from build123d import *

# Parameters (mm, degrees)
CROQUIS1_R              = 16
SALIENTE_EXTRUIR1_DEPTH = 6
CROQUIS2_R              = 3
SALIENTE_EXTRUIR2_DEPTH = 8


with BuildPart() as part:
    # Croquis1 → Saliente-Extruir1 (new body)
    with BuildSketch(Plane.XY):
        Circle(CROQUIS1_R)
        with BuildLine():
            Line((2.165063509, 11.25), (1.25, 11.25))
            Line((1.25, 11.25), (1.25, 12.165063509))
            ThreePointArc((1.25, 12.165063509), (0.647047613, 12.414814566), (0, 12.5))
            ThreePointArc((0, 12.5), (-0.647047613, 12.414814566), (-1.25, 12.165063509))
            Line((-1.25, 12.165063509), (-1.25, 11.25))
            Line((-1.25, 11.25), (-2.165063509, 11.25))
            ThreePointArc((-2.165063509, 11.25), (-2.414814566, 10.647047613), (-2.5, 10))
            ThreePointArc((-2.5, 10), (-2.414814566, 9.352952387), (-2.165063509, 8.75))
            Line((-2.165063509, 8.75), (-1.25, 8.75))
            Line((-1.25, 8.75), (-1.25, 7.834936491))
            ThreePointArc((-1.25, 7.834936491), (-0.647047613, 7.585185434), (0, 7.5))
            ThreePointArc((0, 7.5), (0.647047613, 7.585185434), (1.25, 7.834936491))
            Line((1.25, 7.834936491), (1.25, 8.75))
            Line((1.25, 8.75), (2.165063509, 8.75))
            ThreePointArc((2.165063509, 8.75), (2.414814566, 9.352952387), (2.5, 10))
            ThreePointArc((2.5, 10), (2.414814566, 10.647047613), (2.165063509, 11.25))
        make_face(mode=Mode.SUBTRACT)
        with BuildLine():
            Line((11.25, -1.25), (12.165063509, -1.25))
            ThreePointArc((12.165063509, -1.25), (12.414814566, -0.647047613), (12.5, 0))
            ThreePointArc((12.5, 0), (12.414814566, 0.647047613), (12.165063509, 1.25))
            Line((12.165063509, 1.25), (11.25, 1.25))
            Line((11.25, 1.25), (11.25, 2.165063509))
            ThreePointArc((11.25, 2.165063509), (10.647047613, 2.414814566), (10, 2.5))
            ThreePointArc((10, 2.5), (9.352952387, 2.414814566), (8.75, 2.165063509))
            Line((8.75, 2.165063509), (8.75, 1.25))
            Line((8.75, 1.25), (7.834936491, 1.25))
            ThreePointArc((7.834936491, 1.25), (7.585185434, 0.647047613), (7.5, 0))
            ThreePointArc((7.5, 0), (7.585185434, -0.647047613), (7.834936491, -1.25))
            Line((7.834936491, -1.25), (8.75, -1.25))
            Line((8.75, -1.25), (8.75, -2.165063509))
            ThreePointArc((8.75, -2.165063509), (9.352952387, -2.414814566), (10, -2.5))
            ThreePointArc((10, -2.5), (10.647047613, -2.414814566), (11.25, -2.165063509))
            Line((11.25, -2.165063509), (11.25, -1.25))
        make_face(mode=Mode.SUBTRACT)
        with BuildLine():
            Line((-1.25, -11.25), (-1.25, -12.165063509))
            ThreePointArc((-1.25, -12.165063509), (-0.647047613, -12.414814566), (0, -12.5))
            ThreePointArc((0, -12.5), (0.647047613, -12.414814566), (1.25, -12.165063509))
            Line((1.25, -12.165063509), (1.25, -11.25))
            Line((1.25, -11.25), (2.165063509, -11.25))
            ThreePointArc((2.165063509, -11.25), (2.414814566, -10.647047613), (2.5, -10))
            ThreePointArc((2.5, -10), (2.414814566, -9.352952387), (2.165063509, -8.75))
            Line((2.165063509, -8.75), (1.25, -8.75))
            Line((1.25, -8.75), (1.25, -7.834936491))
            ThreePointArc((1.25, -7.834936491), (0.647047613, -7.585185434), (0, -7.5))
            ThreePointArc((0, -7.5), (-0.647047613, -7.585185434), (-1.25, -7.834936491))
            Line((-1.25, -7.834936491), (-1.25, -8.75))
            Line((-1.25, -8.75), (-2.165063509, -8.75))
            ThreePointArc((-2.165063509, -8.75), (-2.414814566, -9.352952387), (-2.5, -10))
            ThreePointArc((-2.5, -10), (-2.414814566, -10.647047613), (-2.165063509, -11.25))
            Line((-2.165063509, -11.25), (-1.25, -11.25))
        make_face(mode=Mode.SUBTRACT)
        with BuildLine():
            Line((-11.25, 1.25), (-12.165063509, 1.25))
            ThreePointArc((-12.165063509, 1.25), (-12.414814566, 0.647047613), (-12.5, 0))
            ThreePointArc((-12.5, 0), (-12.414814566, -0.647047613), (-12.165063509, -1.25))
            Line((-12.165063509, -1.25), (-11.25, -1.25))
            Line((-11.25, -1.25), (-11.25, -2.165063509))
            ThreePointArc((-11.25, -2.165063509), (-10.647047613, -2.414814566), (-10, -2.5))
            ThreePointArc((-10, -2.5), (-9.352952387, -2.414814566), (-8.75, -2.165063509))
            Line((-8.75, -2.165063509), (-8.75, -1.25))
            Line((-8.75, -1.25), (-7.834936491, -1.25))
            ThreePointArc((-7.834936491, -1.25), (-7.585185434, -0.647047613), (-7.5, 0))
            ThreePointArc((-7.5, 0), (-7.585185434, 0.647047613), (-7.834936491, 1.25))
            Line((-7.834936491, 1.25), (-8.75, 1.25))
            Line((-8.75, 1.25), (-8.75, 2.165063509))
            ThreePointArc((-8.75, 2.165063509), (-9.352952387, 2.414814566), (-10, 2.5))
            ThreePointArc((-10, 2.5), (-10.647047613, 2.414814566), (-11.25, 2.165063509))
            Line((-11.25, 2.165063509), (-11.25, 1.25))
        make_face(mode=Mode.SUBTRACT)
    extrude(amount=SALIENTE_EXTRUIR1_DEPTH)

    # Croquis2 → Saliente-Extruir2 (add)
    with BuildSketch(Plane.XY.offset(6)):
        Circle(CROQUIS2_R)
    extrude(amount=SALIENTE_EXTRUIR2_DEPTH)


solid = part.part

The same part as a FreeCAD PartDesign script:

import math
import FreeCAD as App
import Part
import Sketcher

V = App.Vector

doc = App.newDocument("Part")
body = doc.addObject("PartDesign::Body", "Body")

sketch1 = doc.addObject("Sketcher::SketchObject", "Sketch")
body.addObject(sketch1)
sketch1.AttachmentSupport = (doc.XY_Plane, [""])
sketch1.MapMode = "FlatFace"
sketch1.addGeometry(Part.Circle(V(0, 0, 0), V(0, 0, 1), 16), False)
sketch1.addGeometry(Part.LineSegment(V(-1.2, -12.2, 0), V(-1.2, -11.2, 0)), False)
sketch1.addGeometry(Part.LineSegment(V(-1.2, -11.2, 0), V(-2.2, -11.2, 0)), False)
sketch1.addGeometry(Part.ArcOfCircle(Part.Circle(V(0, -10, 0), V(0, 0, 1), 2.5), math.radians(180), math.radians(210)), False)
sketch1.addGeometry(Part.ArcOfCircle(Part.Circle(V(0, -10, 0), V(0, 0, 1), 2.5), math.radians(150), math.radians(180)), False)
sketch1.addGeometry(Part.LineSegment(V(-2.2, -8.8, 0), V(-1.2, -8.8, 0)), False)
sketch1.addGeometry(Part.LineSegment(V(-1.2, -8.8, 0), V(-1.2, -7.8, 0)), False)
sketch1.addGeometry(Part.ArcOfCircle(Part.Circle(V(0, -10, 0), V(0, 0, 1), 2.5), math.radians(90), math.radians(120)), False)
sketch1.addGeometry(Part.ArcOfCircle(Part.Circle(V(0, -10, 0), V(0, 0, 1), 2.5), math.radians(60), math.radians(90)), False)
sketch1.addGeometry(Part.LineSegment(V(1.2, -7.8, 0), V(1.2, -8.8, 0)), False)
sketch1.addGeometry(Part.LineSegment(V(1.2, -8.8, 0), V(2.2, -8.8, 0)), False)
sketch1.addGeometry(Part.ArcOfCircle(Part.Circle(V(0, -10, 0), V(0, 0, 1), 2.5), math.radians(0), math.radians(30)), False)
sketch1.addGeometry(Part.ArcOfCircle(Part.Circle(V(0, -10, 0), V(0, 0, 1), 2.5), math.radians(-30), math.radians(0)), False)
sketch1.addGeometry(Part.LineSegment(V(2.2, -11.2, 0), V(1.2, -11.2, 0)), False)
sketch1.addGeometry(Part.LineSegment(V(1.2, -11.2, 0), V(1.2, -12.2, 0)), False)
sketch1.addGeometry(Part.ArcOfCircle(Part.Circle(V(0, -10, 0), V(0, 0, 1), 2.5), math.radians(-90), math.radians(-60)), False)
sketch1.addGeometry(Part.ArcOfCircle(Part.Circle(V(0, -10, 0), V(0, 0, 1), 2.5), math.radians(-120), math.radians(-90)), False)
sketch1.addGeometry(Part.LineSegment(V(-12.2, 1.2, 0), V(-11.2, 1.2, 0)), False)
sketch1.addGeometry(Part.LineSegment(V(-11.2, 1.2, 0), V(-11.2, 2.2, 0)), False)
sketch1.addGeometry(Part.ArcOfCircle(Part.Circle(V(-10, 0, 0), V(0, 0, 1), 2.5), math.radians(90), math.radians(120)), False)
sketch1.addGeometry(Part.ArcOfCircle(Part.Circle(V(-10, 0, 0), V(0, 0, 1), 2.5), math.radians(60), math.radians(90)), False)
sketch1.addGeometry(Part.LineSegment(V(-8.8, 2.2, 0), V(-8.8, 1.2, 0)), False)
sketch1.addGeometry(Part.LineSegment(V(-8.8, 1.2, 0), V(-7.8, 1.2, 0)), False)
sketch1.addGeometry(Part.ArcOfCircle(Part.Circle(V(-10, 0, 0), V(0, 0, 1), 2.5), math.radians(0), math.radians(30)), False)
sketch1.addGeometry(Part.ArcOfCircle(Part.Circle(V(-10, 0, 0), V(0, 0, 1), 2.5), math.radians(-30), math.radians(0)), False)
sketch1.addGeometry(Part.LineSegment(V(-7.8, -1.2, 0), V(-8.8, -1.2, 0)), False)
sketch1.addGeometry(Part.LineSegment(V(-8.8, -1.2, 0), V(-8.8, -2.2, 0)), False)
sketch1.addGeometry(Part.ArcOfCircle(Part.Circle(V(-10, 0, 0), V(0, 0, 1), 2.5), math.radians(-90), math.radians(-60)), False)
sketch1.addGeometry(Part.ArcOfCircle(Part.Circle(V(-10, 0, 0), V(0, 0, 1), 2.5), math.radians(-120), math.radians(-90)), False)
sketch1.addGeometry(Part.LineSegment(V(-11.2, -2.2, 0), V(-11.2, -1.2, 0)), False)
sketch1.addGeometry(Part.LineSegment(V(-11.2, -1.2, 0), V(-12.2, -1.2, 0)), False)
sketch1.addGeometry(Part.ArcOfCircle(Part.Circle(V(-10, 0, 0), V(0, 0, 1), 2.5), math.radians(180), math.radians(210)), False)
sketch1.addGeometry(Part.ArcOfCircle(Part.Circle(V(-10, 0, 0), V(0, 0, 1), 2.5), math.radians(150), math.radians(180)), False)
sketch1.addGeometry(Part.LineSegment(V(12.2, -1.2, 0), V(11.2, -1.2, 0)), False)
sketch1.addGeometry(Part.LineSegment(V(11.2, -1.2, 0), V(11.2, -2.2, 0)), False)
sketch1.addGeometry(Part.ArcOfCircle(Part.Circle(V(10, 0, 0), V(0, 0, 1), 2.5), math.radians(-90), math.radians(-60)), False)
sketch1.addGeometry(Part.ArcOfCircle(Part.Circle(V(10, 0, 0), V(0, 0, 1), 2.5), math.radians(-120), math.radians(-90)), False)
sketch1.addGeometry(Part.LineSegment(V(8.8, -2.2, 0), V(8.8, -1.2, 0)), False)
sketch1.addGeometry(Part.LineSegment(V(8.8, -1.2, 0), V(7.8, -1.2, 0)), False)
sketch1.addGeometry(Part.ArcOfCircle(Part.Circle(V(10, 0, 0), V(0, 0, 1), 2.5), math.radians(180), math.radians(210)), False)
sketch1.addGeometry(Part.ArcOfCircle(Part.Circle(V(10, 0, 0), V(0, 0, 1), 2.5), math.radians(150), math.radians(180)), False)
sketch1.addGeometry(Part.LineSegment(V(7.8, 1.2, 0), V(8.8, 1.2, 0)), False)
sketch1.addGeometry(Part.LineSegment(V(8.8, 1.2, 0), V(8.8, 2.2, 0)), False)
sketch1.addGeometry(Part.ArcOfCircle(Part.Circle(V(10, 0, 0), V(0, 0, 1), 2.5), math.radians(90), math.radians(120)), False)
sketch1.addGeometry(Part.ArcOfCircle(Part.Circle(V(10, 0, 0), V(0, 0, 1), 2.5), math.radians(60), math.radians(90)), False)
sketch1.addGeometry(Part.LineSegment(V(11.2, 2.2, 0), V(11.2, 1.2, 0)), False)
sketch1.addGeometry(Part.LineSegment(V(11.2, 1.2, 0), V(12.2, 1.2, 0)), False)
sketch1.addGeometry(Part.ArcOfCircle(Part.Circle(V(10, 0, 0), V(0, 0, 1), 2.5), math.radians(0), math.radians(30)), False)
sketch1.addGeometry(Part.ArcOfCircle(Part.Circle(V(10, 0, 0), V(0, 0, 1), 2.5), math.radians(-30), math.radians(0)), False)
sketch1.addGeometry(Part.LineSegment(V(1.2, 11.2, 0), V(2.2, 11.2, 0)), False)
sketch1.addGeometry(Part.ArcOfCircle(Part.Circle(V(0, 10, 0), V(0, 0, 1), 2.5), math.radians(0), math.radians(30)), False)
sketch1.addGeometry(Part.ArcOfCircle(Part.Circle(V(0, 10, 0), V(0, 0, 1), 2.5), math.radians(-30), math.radians(0)), False)
sketch1.addGeometry(Part.LineSegment(V(2.2, 8.8, 0), V(1.2, 8.8, 0)), False)
sketch1.addGeometry(Part.LineSegment(V(1.2, 8.8, 0), V(1.2, 7.8, 0)), False)
sketch1.addGeometry(Part.ArcOfCircle(Part.Circle(V(0, 10, 0), V(0, 0, 1), 2.5), math.radians(-90), math.radians(-60)), False)
sketch1.addGeometry(Part.ArcOfCircle(Part.Circle(V(0, 10, 0), V(0, 0, 1), 2.5), math.radians(-120), math.radians(-90)), False)
sketch1.addGeometry(Part.LineSegment(V(-1.2, 7.8, 0), V(-1.2, 8.8, 0)), False)
sketch1.addGeometry(Part.LineSegment(V(-1.2, 8.8, 0), V(-2.2, 8.8, 0)), False)
sketch1.addGeometry(Part.ArcOfCircle(Part.Circle(V(0, 10, 0), V(0, 0, 1), 2.5), math.radians(180), math.radians(210)), False)
sketch1.addGeometry(Part.ArcOfCircle(Part.Circle(V(0, 10, 0), V(0, 0, 1), 2.5), math.radians(150), math.radians(180)), False)
sketch1.addGeometry(Part.LineSegment(V(-2.2, 11.2, 0), V(-1.2, 11.2, 0)), False)
sketch1.addGeometry(Part.LineSegment(V(-1.2, 11.2, 0), V(-1.2, 12.2, 0)), False)
sketch1.addGeometry(Part.ArcOfCircle(Part.Circle(V(0, 10, 0), V(0, 0, 1), 2.5), math.radians(90), math.radians(120)), False)
sketch1.addGeometry(Part.ArcOfCircle(Part.Circle(V(0, 10, 0), V(0, 0, 1), 2.5), math.radians(60), math.radians(90)), False)
sketch1.addGeometry(Part.LineSegment(V(1.2, 12.2, 0), V(1.2, 11.2, 0)), False)
sketch1.addConstraint(Sketcher.Constraint("Coincident", 1, 2, 2, 1))
sketch1.addConstraint(Sketcher.Constraint("Coincident", 2, 2, 3, 2))
sketch1.addConstraint(Sketcher.Constraint("Tangent", 3, 1, 4, 2))
sketch1.addConstraint(Sketcher.Constraint("Coincident", 4, 1, 5, 1))
sketch1.addConstraint(Sketcher.Constraint("Coincident", 5, 2, 6, 1))
sketch1.addConstraint(Sketcher.Constraint("Coincident", 6, 2, 7, 2))
sketch1.addConstraint(Sketcher.Constraint("Tangent", 7, 1, 8, 2))
sketch1.addConstraint(Sketcher.Constraint("Coincident", 8, 1, 9, 1))
sketch1.addConstraint(Sketcher.Constraint("Coincident", 9, 2, 10, 1))
sketch1.addConstraint(Sketcher.Constraint("Coincident", 10, 2, 11, 2))
sketch1.addConstraint(Sketcher.Constraint("Tangent", 11, 1, 12, 2))
sketch1.addConstraint(Sketcher.Constraint("Coincident", 12, 1, 13, 1))
sketch1.addConstraint(Sketcher.Constraint("Coincident", 13, 2, 14, 1))
sketch1.addConstraint(Sketcher.Constraint("Coincident", 14, 2, 15, 2))
sketch1.addConstraint(Sketcher.Constraint("Tangent", 15, 1, 16, 2))
sketch1.addConstraint(Sketcher.Constraint("Coincident", 16, 1, 1, 1))
sketch1.addConstraint(Sketcher.Constraint("Coincident", 17, 2, 18, 1))
sketch1.addConstraint(Sketcher.Constraint("Coincident", 18, 2, 19, 2))
sketch1.addConstraint(Sketcher.Constraint("Tangent", 19, 1, 20, 2))
sketch1.addConstraint(Sketcher.Constraint("Coincident", 20, 1, 21, 1))
sketch1.addConstraint(Sketcher.Constraint("Coincident", 21, 2, 22, 1))
sketch1.addConstraint(Sketcher.Constraint("Coincident", 22, 2, 23, 2))
sketch1.addConstraint(Sketcher.Constraint("Tangent", 23, 1, 24, 2))
sketch1.addConstraint(Sketcher.Constraint("Coincident", 24, 1, 25, 1))
sketch1.addConstraint(Sketcher.Constraint("Coincident", 25, 2, 26, 1))
sketch1.addConstraint(Sketcher.Constraint("Coincident", 26, 2, 27, 2))
sketch1.addConstraint(Sketcher.Constraint("Tangent", 27, 1, 28, 2))
sketch1.addConstraint(Sketcher.Constraint("Coincident", 28, 1, 29, 1))
sketch1.addConstraint(Sketcher.Constraint("Coincident", 29, 2, 30, 1))
sketch1.addConstraint(Sketcher.Constraint("Coincident", 30, 2, 31, 2))
sketch1.addConstraint(Sketcher.Constraint("Tangent", 31, 1, 32, 2))
sketch1.addConstraint(Sketcher.Constraint("Coincident", 32, 1, 17, 1))
sketch1.addConstraint(Sketcher.Constraint("Coincident", 33, 2, 34, 1))
sketch1.addConstraint(Sketcher.Constraint("Coincident", 34, 2, 35, 2))
sketch1.addConstraint(Sketcher.Constraint("Tangent", 35, 1, 36, 2))
sketch1.addConstraint(Sketcher.Constraint("Coincident", 36, 1, 37, 1))
sketch1.addConstraint(Sketcher.Constraint("Coincident", 37, 2, 38, 1))
sketch1.addConstraint(Sketcher.Constraint("Coincident", 38, 2, 39, 2))
sketch1.addConstraint(Sketcher.Constraint("Tangent", 39, 1, 40, 2))
sketch1.addConstraint(Sketcher.Constraint("Coincident", 40, 1, 41, 1))
sketch1.addConstraint(Sketcher.Constraint("Coincident", 41, 2, 42, 1))
sketch1.addConstraint(Sketcher.Constraint("Coincident", 42, 2, 43, 2))
sketch1.addConstraint(Sketcher.Constraint("Tangent", 43, 1, 44, 2))
sketch1.addConstraint(Sketcher.Constraint("Coincident", 44, 1, 45, 1))
sketch1.addConstraint(Sketcher.Constraint("Coincident", 45, 2, 46, 1))
sketch1.addConstraint(Sketcher.Constraint("Coincident", 46, 2, 47, 2))
sketch1.addConstraint(Sketcher.Constraint("Tangent", 47, 1, 48, 2))
sketch1.addConstraint(Sketcher.Constraint("Coincident", 48, 1, 33, 1))
sketch1.addConstraint(Sketcher.Constraint("Coincident", 49, 2, 50, 2))
sketch1.addConstraint(Sketcher.Constraint("Tangent", 50, 1, 51, 2))
sketch1.addConstraint(Sketcher.Constraint("Coincident", 51, 1, 52, 1))
sketch1.addConstraint(Sketcher.Constraint("Coincident", 52, 2, 53, 1))
sketch1.addConstraint(Sketcher.Constraint("Coincident", 53, 2, 54, 2))
sketch1.addConstraint(Sketcher.Constraint("Tangent", 54, 1, 55, 2))
sketch1.addConstraint(Sketcher.Constraint("Coincident", 55, 1, 56, 1))
sketch1.addConstraint(Sketcher.Constraint("Coincident", 56, 2, 57, 1))
sketch1.addConstraint(Sketcher.Constraint("Coincident", 57, 2, 58, 2))
sketch1.addConstraint(Sketcher.Constraint("Tangent", 58, 1, 59, 2))
sketch1.addConstraint(Sketcher.Constraint("Coincident", 59, 1, 60, 1))
sketch1.addConstraint(Sketcher.Constraint("Coincident", 60, 2, 61, 1))
sketch1.addConstraint(Sketcher.Constraint("Coincident", 61, 2, 62, 2))
sketch1.addConstraint(Sketcher.Constraint("Tangent", 62, 1, 63, 2))
sketch1.addConstraint(Sketcher.Constraint("Coincident", 63, 1, 64, 1))
sketch1.addConstraint(Sketcher.Constraint("Coincident", 64, 2, 49, 1))
sketch1.addConstraint(Sketcher.Constraint("Vertical", 1))
sketch1.addConstraint(Sketcher.Constraint("Horizontal", 2))
sketch1.addConstraint(Sketcher.Constraint("Horizontal", 5))
sketch1.addConstraint(Sketcher.Constraint("Vertical", 6))
sketch1.addConstraint(Sketcher.Constraint("Vertical", 9))
sketch1.addConstraint(Sketcher.Constraint("Horizontal", 10))
sketch1.addConstraint(Sketcher.Constraint("Horizontal", 13))
sketch1.addConstraint(Sketcher.Constraint("Vertical", 14))
sketch1.addConstraint(Sketcher.Constraint("Horizontal", 17))
sketch1.addConstraint(Sketcher.Constraint("Vertical", 18))
sketch1.addConstraint(Sketcher.Constraint("Vertical", 21))
sketch1.addConstraint(Sketcher.Constraint("Horizontal", 22))
sketch1.addConstraint(Sketcher.Constraint("Horizontal", 25))
sketch1.addConstraint(Sketcher.Constraint("Vertical", 26))
sketch1.addConstraint(Sketcher.Constraint("Vertical", 29))
sketch1.addConstraint(Sketcher.Constraint("Horizontal", 30))
sketch1.addConstraint(Sketcher.Constraint("Horizontal", 33))
sketch1.addConstraint(Sketcher.Constraint("Vertical", 34))
sketch1.addConstraint(Sketcher.Constraint("Vertical", 37))
sketch1.addConstraint(Sketcher.Constraint("Horizontal", 38))
sketch1.addConstraint(Sketcher.Constraint("Horizontal", 41))
sketch1.addConstraint(Sketcher.Constraint("Vertical", 42))
sketch1.addConstraint(Sketcher.Constraint("Vertical", 45))
sketch1.addConstraint(Sketcher.Constraint("Horizontal", 46))
sketch1.addConstraint(Sketcher.Constraint("Horizontal", 49))
sketch1.addConstraint(Sketcher.Constraint("Horizontal", 52))
sketch1.addConstraint(Sketcher.Constraint("Vertical", 53))
sketch1.addConstraint(Sketcher.Constraint("Vertical", 56))
sketch1.addConstraint(Sketcher.Constraint("Horizontal", 57))
sketch1.addConstraint(Sketcher.Constraint("Horizontal", 60))
sketch1.addConstraint(Sketcher.Constraint("Vertical", 61))
sketch1.addConstraint(Sketcher.Constraint("Vertical", 64))
sketch1.addConstraint(Sketcher.Constraint("Coincident", 0, 3, -1, 1))
sketch1.addConstraint(Sketcher.Constraint("Coincident", 7, 3, 3, 3))
sketch1.addConstraint(Sketcher.Constraint("Coincident", 11, 3, 3, 3))
sketch1.addConstraint(Sketcher.Constraint("Coincident", 15, 3, 3, 3))
sketch1.addConstraint(Sketcher.Constraint("Coincident", 23, 3, 19, 3))
sketch1.addConstraint(Sketcher.Constraint("Coincident", 27, 3, 19, 3))
sketch1.addConstraint(Sketcher.Constraint("Coincident", 31, 3, 19, 3))
sketch1.addConstraint(Sketcher.Constraint("Coincident", 39, 3, 35, 3))
sketch1.addConstraint(Sketcher.Constraint("Coincident", 43, 3, 35, 3))
sketch1.addConstraint(Sketcher.Constraint("Coincident", 47, 3, 35, 3))
sketch1.addConstraint(Sketcher.Constraint("Coincident", 54, 3, 50, 3))
sketch1.addConstraint(Sketcher.Constraint("Coincident", 58, 3, 50, 3))
sketch1.addConstraint(Sketcher.Constraint("Coincident", 62, 3, 50, 3))
sketch1.addConstraint(Sketcher.Constraint("Equal", 3, 4))
sketch1.addConstraint(Sketcher.Constraint("Equal", 4, 7))
sketch1.addConstraint(Sketcher.Constraint("Equal", 7, 8))
sketch1.addConstraint(Sketcher.Constraint("Equal", 8, 11))
sketch1.addConstraint(Sketcher.Constraint("Equal", 11, 12))
sketch1.addConstraint(Sketcher.Constraint("Equal", 12, 15))
sketch1.addConstraint(Sketcher.Constraint("Equal", 15, 16))
sketch1.addConstraint(Sketcher.Constraint("Equal", 16, 19))
sketch1.addConstraint(Sketcher.Constraint("Equal", 19, 20))
sketch1.addConstraint(Sketcher.Constraint("Equal", 20, 23))
sketch1.addConstraint(Sketcher.Constraint("Equal", 23, 24))
sketch1.addConstraint(Sketcher.Constraint("Equal", 24, 27))
sketch1.addConstraint(Sketcher.Constraint("Equal", 27, 28))
sketch1.addConstraint(Sketcher.Constraint("Equal", 28, 31))
sketch1.addConstraint(Sketcher.Constraint("Equal", 31, 32))
sketch1.addConstraint(Sketcher.Constraint("Equal", 32, 35))
sketch1.addConstraint(Sketcher.Constraint("Equal", 35, 36))
sketch1.addConstraint(Sketcher.Constraint("Equal", 36, 39))
sketch1.addConstraint(Sketcher.Constraint("Equal", 39, 40))
sketch1.addConstraint(Sketcher.Constraint("Equal", 40, 43))
sketch1.addConstraint(Sketcher.Constraint("Equal", 43, 44))
sketch1.addConstraint(Sketcher.Constraint("Equal", 44, 47))
sketch1.addConstraint(Sketcher.Constraint("Equal", 47, 48))
sketch1.addConstraint(Sketcher.Constraint("Equal", 48, 50))
sketch1.addConstraint(Sketcher.Constraint("Equal", 50, 51))
sketch1.addConstraint(Sketcher.Constraint("Equal", 51, 54))
sketch1.addConstraint(Sketcher.Constraint("Equal", 54, 55))
sketch1.addConstraint(Sketcher.Constraint("Equal", 55, 58))
sketch1.addConstraint(Sketcher.Constraint("Equal", 58, 59))
sketch1.addConstraint(Sketcher.Constraint("Equal", 59, 62))
sketch1.addConstraint(Sketcher.Constraint("Equal", 62, 63))
sketch1.addConstraint(Sketcher.Constraint("Symmetric", 19, 3, 35, 3, -1, 1))
sketch1.addConstraint(Sketcher.Constraint("Symmetric", 3, 3, 50, 3, -1, 1))
sketch1.addConstraint(Sketcher.Constraint("Symmetric", 17, 2, 33, 2, -1, 1))
sketch1.addConstraint(Sketcher.Constraint("Symmetric", 21, 2, 37, 2, -1, 1))
sketch1.addConstraint(Sketcher.Constraint("Symmetric", 25, 2, 41, 2, -1, 1))
sketch1.addConstraint(Sketcher.Constraint("Symmetric", 29, 2, 45, 2, -1, 1))
sketch1.addConstraint(Sketcher.Constraint("Symmetric", 5, 2, 52, 2, -1, 1))
sketch1.addConstraint(Sketcher.Constraint("Symmetric", 9, 2, 56, 2, -1, 1))
sketch1.addConstraint(Sketcher.Constraint("Symmetric", 13, 2, 60, 2, -1, 1))
sketch1.addConstraint(Sketcher.Constraint("Symmetric", 1, 2, 64, 2, -1, 1))
sketch1.addConstraint(Sketcher.Constraint("Symmetric", 6, 2, 8, 1, -2))
sketch1.addConstraint(Sketcher.Constraint("Symmetric", 1, 2, 13, 2, -2))
sketch1.addConstraint(Sketcher.Constraint("Symmetric", 29, 2, 33, 2, -2))
sketch1.addConstraint(Sketcher.Constraint("Symmetric", 27, 1, 35, 1, -2))
sketch1.addConstraint(Sketcher.Constraint("Symmetric", 25, 2, 37, 2, -2))
sketch1.addConstraint(Sketcher.Constraint("PointOnObject", 7, 1, -2))
sketch1.addConstraint(Sketcher.Constraint("PointOnObject", 15, 1, -2))
sketch1.addConstraint(Sketcher.Constraint("PointOnObject", 23, 1, -1))
sketch1.addConstraint(Sketcher.Constraint("PointOnObject", 31, 1, -1))
sketch1.addConstraint(Sketcher.Constraint("PointOnObject", 39, 1, -1))
sketch1.addConstraint(Sketcher.Constraint("PointOnObject", 47, 1, -1))
sketch1.addConstraint(Sketcher.Constraint("PointOnObject", 54, 1, -2))
sketch1.addConstraint(Sketcher.Constraint("PointOnObject", 62, 1, -2))
sketch1.addConstraint(Sketcher.Constraint("Horizontal", 16, 3, 3, 1))
sketch1.addConstraint(Sketcher.Constraint("Horizontal", 5, 2, 9, 2))
sketch1.addConstraint(Sketcher.Constraint("Horizontal", 3, 1, 11, 1))
sketch1.addConstraint(Sketcher.Constraint("Horizontal", 18, 2, 20, 1))
sketch1.addConstraint(Sketcher.Constraint("Horizontal", 17, 2, 21, 2))
sketch1.addConstraint(Sketcher.Constraint("Horizontal", 63, 3, 50, 1))
sketch1.addConstraint(Sketcher.Constraint("Horizontal", 50, 1, 58, 1))
sketch1.addConstraint(Sketcher.Constraint("Vertical", 2, 2, 4, 1))
sketch1.addConstraint(Sketcher.Constraint("Vertical", 1, 2, 5, 2))
sketch1.addConstraint(Sketcher.Constraint("Vertical", 32, 3, 19, 1))
sketch1.addConstraint(Sketcher.Constraint("Vertical", 19, 1, 27, 1))
sketch1.addConstraint(Sketcher.Constraint("Vertical", 35, 1, 43, 1))
sketch1.addConstraint(Sketcher.Constraint("Equal", 13, 17))
sketch1.addConstraint(Sketcher.Constraint("Equal", 60, 1))
sketch1.addConstraint(Sketcher.Constraint("Equal", 14, 18))
sketch1.addConstraint(Sketcher.Constraint("Diameter", 0, 32.0))
sketch1.addConstraint(Sketcher.Constraint("Radius", 3, 2.5))
sketch1.addConstraint(Sketcher.Constraint("DistanceY", 3, 3, -1, 1, 10.0))
sketch1.addConstraint(Sketcher.Constraint("DistanceX", 19, 3, -1, 1, 10.0))
sketch1.addConstraint(Sketcher.Constraint("DistanceX", 1, 2, -1, 1, 1.25))
pad1 = doc.addObject("PartDesign::Pad", "Pad")
body.addObject(pad1)
pad1.Profile = sketch1
pad1.Length = 6

sketch2 = doc.addObject("Sketcher::SketchObject", "Sketch001")
body.addObject(sketch2)
sketch2.AttachmentSupport = (doc.XY_Plane, [""])
sketch2.MapMode = "FlatFace"
sketch2.AttachmentOffset = App.Placement(V(0, 0, 6), App.Rotation())
sketch2.addGeometry(Part.Circle(V(0, 0, 0), V(0, 0, 1), 3), False)
sketch2.addConstraint(Sketcher.Constraint("Coincident", 0, 3, -1, 1))
sketch2.addConstraint(Sketcher.Constraint("Diameter", 0, 6.0))
pad2 = doc.addObject("PartDesign::Pad", "Pad001")
body.addObject(pad2)
pad2.Profile = sketch2
pad2.Length = 8

doc.recompute()
